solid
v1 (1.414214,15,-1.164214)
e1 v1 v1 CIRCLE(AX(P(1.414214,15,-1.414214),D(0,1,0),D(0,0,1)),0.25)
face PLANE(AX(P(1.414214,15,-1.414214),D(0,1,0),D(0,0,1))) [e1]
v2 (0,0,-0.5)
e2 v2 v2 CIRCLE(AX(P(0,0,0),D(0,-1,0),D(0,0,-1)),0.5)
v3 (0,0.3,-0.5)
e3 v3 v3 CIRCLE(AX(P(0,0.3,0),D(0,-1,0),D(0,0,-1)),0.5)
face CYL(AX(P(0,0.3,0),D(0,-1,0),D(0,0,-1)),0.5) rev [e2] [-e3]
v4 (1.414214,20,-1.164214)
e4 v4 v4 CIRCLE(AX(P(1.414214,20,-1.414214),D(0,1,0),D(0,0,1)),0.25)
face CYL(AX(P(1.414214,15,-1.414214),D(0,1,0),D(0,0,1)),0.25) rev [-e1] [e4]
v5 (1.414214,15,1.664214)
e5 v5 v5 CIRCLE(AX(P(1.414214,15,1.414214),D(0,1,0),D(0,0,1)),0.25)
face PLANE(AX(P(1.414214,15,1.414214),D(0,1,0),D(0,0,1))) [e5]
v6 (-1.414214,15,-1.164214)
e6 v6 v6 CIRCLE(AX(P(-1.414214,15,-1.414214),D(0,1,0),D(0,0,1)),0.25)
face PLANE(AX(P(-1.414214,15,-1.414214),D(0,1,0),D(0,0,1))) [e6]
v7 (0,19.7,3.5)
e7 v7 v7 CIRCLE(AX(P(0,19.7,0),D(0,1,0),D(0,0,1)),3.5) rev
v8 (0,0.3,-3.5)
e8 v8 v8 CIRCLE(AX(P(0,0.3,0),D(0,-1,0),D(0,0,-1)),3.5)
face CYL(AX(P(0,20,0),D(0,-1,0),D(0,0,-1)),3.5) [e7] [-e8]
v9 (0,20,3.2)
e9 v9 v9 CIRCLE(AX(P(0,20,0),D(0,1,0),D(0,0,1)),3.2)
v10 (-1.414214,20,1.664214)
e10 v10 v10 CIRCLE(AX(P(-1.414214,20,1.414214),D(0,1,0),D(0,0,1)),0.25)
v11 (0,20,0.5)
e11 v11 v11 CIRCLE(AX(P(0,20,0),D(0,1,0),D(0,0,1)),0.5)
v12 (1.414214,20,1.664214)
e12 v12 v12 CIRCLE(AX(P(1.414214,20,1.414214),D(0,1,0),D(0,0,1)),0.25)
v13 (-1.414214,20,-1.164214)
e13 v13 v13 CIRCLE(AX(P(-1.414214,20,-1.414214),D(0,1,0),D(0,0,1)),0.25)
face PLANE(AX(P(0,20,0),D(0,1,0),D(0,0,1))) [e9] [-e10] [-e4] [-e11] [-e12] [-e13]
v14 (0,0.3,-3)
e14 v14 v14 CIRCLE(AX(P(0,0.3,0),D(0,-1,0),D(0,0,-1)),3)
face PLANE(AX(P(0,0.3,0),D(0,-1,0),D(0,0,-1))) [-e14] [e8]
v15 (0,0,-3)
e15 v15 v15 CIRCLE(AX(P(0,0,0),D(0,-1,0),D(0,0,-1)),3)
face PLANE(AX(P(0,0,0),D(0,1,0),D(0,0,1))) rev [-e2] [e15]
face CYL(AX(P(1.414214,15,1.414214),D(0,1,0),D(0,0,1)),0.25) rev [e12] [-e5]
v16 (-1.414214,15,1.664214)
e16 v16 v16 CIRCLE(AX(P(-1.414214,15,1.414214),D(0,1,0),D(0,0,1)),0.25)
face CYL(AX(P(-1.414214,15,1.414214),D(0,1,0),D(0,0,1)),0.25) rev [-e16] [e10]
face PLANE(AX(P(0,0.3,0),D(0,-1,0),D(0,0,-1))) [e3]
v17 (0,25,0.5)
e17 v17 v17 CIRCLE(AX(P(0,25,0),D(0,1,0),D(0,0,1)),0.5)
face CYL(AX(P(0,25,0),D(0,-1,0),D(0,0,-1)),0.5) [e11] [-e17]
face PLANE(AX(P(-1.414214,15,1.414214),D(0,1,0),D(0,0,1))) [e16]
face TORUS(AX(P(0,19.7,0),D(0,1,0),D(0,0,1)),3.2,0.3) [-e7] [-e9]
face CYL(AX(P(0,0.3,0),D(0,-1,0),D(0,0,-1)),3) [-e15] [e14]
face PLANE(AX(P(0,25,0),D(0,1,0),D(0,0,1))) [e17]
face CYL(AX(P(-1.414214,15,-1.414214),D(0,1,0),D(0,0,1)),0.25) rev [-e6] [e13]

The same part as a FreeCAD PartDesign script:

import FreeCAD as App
import Part
import Sketcher
from FreeCAD import Vector


def edges_at(feature, points):
    """Names of the edges that pass closest to the given points."""
    edges = feature.Shape.Edges
    near = lambda p: min(range(len(edges)), key=lambda i: edges[i].distToShape(Part.Vertex(*p))[0])
    return sorted({f"Edge{near(p) + 1}" for p in points})

doc = App.newDocument("Part")
body = doc.addObject("PartDesign::Body", "Body")

sketch1 = body.newObject("Sketcher::SketchObject", "Sketch")
sketch1.AttachmentSupport = (doc.getObject("XZ_Plane"), [""])
sketch1.MapMode = "FlatFace"
sketch1.addGeometry(Part.Circle(Vector(0, 0, 0), Vector(0, 0, 1), 3.5), False)
sketch1.addConstraint([
    Sketcher.Constraint("Coincident", 0, 3, -1, 1),
    Sketcher.Constraint("Diameter", 0, 7.0),
])
pad1 = body.newObject("PartDesign::Pad", "Pad")
pad1.Profile = sketch1
pad1.Length = 20
pad1.Reversed = True

sketch2 = body.newObject("Sketcher::SketchObject", "Sketch001")
sketch2.AttachmentSupport = (doc.getObject("XZ_Plane"), [""])
sketch2.MapMode = "FlatFace"
sketch2.AttachmentOffset = App.Placement(Vector(0, 0, -20), App.Rotation())
sketch2.addGeometry(Part.Circle(Vector(0, 0, 0), Vector(0, 0, 1), 0.5), False)
sketch2.addConstraint([
    Sketcher.Constraint("Coincident", 0, 3, -1, 1),
    Sketcher.Constraint("Diameter", 0, 1.0),
])
pad2 = body.newObject("PartDesign::Pad", "Pad001")
pad2.Profile = sketch2
pad2.Length = 5
pad2.Reversed = True
doc.recompute()

fillet = body.newObject("PartDesign::Fillet", "Fillet")
fillet.Base = (pad2, edges_at(pad2, [(-3.5, 20, 0)]))
fillet.Radius = 0.3

sketch3 = body.newObject("Sketcher::SketchObject", "Sketch002")
sketch3.AttachmentSupport = (doc.getObject("XZ_Plane"), [""])
sketch3.MapMode = "FlatFace"
sketch3.AttachmentOffset = App.Placement(Vector(0, 0, -20), App.Rotation())
sketch3.addGeometry([
    Part.Circle(Vector(-1.414214, -1.414214, 0), Vector(0, 0, 1), 0.25),
    Part.Circle(Vector(1.414214, -1.414214, 0), Vector(0, 0, 1), 0.25),
    Part.Circle(Vector(1.414214, 1.414214, 0), Vector(0, 0, 1), 0.25),
    Part.Circle(Vector(-1.414214, 1.414214, 0), Vector(0, 0, 1), 0.25),
], False)
sketch3.addConstraint([
    Sketcher.Constraint("Equal", 0, 1),
    Sketcher.Constraint("Equal", 1, 2),
    Sketcher.Constraint("Equal", 2, 3),
    Sketcher.Constraint("Symmetric", 0, 3, 2, 3, -1, 1),
    Sketcher.Constraint("Symmetric", 1, 3, 3, 3, -1, 1),
    Sketcher.Constraint("Symmetric", 0, 3, 1, 3, -2),
    Sketcher.Constraint("Diameter", 0, 0.5),
    Sketcher.Constraint("DistanceX", 0, 3, -1, 1, 1.414214),
    Sketcher.Constraint("DistanceY", 0, 3, -1, 1, 1.414214),
])
pocket1 = body.newObject("PartDesign::Pocket", "Pocket")
pocket1.Profile = sketch3
pocket1.Length = 5
pocket1.Reversed = True

sketch4 = body.newObject("Sketcher::SketchObject", "Sketch003")
sketch4.AttachmentSupport = (doc.getObject("XZ_Plane"), [""])
sketch4.MapMode = "FlatFace"
sketch4.addGeometry([
    Part.LineSegment(Vector(-7.189, 7.189, 0), Vector(-7.189, -7.189, 0)),
    Part.LineSegment(Vector(-7.189, -7.189, 0), Vector(7.189, -7.189, 0)),
    Part.LineSegment(Vector(7.189, -7.189, 0), Vector(7.189, 7.189, 0)),
    Part.LineSegment(Vector(7.189, 7.189, 0), Vector(-7.189, 7.189, 0)),
    Part.Circle(Vector(0, 0, 0), Vector(0, 0, 1), 3),
], False)
sketch4.addConstraint([
    Sketcher.Constraint("Coincident", 0, 2, 1, 1),
    Sketcher.Constraint("Coincident", 1, 2, 2, 1),
    Sketcher.Constraint("Coincident", 2, 2, 3, 1),
    Sketcher.Constraint("Coincident", 3, 2, 0, 1),
    Sketcher.Constraint("Vertical", 0),
    Sketcher.Constraint("Horizontal", 1),
    Sketcher.Constraint("Vertical", 2),
    Sketcher.Constraint("Horizontal", 3),
    Sketcher.Constraint("Coincident", 4, 3, -1, 1),
    Sketcher.Constraint("Symmetric", 0, 2, 2, 2, -1, 1),
    Sketcher.Constraint("Equal", 3, 0),
    Sketcher.Constraint("Diameter", 4, 6.0),
    Sketcher.Constraint("DistanceX", 1, 1, 1, 2, 14.378),
])
pocket2 = body.newObject("PartDesign::Pocket", "Pocket001")
pocket2.Profile = sketch4
pocket2.Length = 0.3

sketch5 = body.newObject("Sketcher::SketchObject", "Sketch004")
sketch5.AttachmentSupport = (doc.getObject("XZ_Plane"), [""])
sketch5.MapMode = "FlatFace"
sketch5.addGeometry(Part.Circle(Vector(0, 0, 0), Vector(0, 0, 1), 0.5), False)
sketch5.addConstraint([
    Sketcher.Constraint("Coincident", 0, 3, -1, 1),
    Sketcher.Constraint("Diameter", 0, 1.0),
])
pocket3 = body.newObject("PartDesign::Pocket", "Pocket002")
pocket3.Profile = sketch5
pocket3.Length = 0.3

doc.recompute()
